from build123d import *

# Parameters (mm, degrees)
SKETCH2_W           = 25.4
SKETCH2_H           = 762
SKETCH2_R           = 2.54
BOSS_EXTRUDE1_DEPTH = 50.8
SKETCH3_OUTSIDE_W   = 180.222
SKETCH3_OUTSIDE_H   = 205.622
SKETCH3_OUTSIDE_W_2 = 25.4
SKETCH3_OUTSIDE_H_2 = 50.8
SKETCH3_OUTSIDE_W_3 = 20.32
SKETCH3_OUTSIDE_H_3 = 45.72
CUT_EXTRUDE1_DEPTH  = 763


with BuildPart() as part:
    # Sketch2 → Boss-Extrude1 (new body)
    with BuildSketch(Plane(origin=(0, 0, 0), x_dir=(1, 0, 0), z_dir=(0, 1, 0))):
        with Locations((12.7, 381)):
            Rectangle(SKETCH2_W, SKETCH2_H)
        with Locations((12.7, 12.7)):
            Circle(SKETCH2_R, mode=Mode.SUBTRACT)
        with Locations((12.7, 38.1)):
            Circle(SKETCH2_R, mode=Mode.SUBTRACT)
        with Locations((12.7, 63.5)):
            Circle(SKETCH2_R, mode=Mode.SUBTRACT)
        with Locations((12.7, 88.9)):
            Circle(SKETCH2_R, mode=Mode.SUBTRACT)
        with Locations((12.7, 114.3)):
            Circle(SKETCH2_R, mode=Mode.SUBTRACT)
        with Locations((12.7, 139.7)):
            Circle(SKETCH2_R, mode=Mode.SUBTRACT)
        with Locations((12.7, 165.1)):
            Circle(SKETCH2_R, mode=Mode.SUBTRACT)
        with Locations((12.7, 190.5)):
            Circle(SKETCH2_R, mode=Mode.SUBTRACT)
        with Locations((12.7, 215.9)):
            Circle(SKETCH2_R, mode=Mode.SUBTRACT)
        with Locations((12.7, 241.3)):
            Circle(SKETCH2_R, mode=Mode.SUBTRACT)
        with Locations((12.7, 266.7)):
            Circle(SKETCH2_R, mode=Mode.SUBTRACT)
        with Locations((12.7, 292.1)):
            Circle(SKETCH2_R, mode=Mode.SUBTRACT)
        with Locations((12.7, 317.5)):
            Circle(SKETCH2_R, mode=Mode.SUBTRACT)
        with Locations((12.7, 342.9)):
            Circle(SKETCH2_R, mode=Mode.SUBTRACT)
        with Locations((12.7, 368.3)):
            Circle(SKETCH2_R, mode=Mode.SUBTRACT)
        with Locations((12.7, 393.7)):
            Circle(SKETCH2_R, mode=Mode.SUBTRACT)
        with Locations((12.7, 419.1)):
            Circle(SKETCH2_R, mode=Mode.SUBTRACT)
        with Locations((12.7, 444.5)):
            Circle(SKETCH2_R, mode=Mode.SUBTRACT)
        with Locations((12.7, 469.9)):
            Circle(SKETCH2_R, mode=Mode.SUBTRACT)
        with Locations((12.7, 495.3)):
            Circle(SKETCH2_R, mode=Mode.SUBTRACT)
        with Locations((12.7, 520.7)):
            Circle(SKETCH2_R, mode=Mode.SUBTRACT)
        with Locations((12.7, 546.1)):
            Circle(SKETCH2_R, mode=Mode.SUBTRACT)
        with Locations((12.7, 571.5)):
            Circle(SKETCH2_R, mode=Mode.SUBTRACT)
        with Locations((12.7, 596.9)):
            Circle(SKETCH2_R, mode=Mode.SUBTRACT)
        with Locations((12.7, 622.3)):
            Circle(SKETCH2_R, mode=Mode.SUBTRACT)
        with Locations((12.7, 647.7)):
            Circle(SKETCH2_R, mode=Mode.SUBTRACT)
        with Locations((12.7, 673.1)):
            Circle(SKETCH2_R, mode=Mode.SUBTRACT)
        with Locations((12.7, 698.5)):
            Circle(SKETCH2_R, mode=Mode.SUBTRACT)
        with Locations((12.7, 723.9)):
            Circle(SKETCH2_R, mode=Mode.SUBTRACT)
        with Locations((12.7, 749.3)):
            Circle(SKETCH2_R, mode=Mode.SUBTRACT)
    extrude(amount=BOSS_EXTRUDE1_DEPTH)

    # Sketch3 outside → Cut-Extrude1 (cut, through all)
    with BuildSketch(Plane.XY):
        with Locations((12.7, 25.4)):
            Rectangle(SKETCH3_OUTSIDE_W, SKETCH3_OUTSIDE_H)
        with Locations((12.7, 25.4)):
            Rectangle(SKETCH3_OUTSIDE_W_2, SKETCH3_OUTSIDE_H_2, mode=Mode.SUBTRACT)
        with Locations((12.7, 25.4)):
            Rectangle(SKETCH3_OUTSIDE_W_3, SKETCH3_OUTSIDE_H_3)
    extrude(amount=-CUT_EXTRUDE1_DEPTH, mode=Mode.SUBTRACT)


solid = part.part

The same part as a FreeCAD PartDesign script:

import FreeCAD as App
import Part
import Sketcher

V = App.Vector
Q = App.Units.Quantity

doc = App.newDocument("Part")
body = doc.addObject("PartDesign::Body", "Body")

# Sketch on XZ plane
sketch1 = body.newObject("Sketcher::SketchObject", "Sketch")
sketch1.AttachmentSupport = (doc.getObject("XZ_Plane"), [""])
sketch1.MapMode = "FlatFace"
sketch1.addGeometry([
    Part.LineSegment(V(0, -762, 0), V(0, 0, 0)),  # 0
    Part.LineSegment(V(0, 0, 0), V(25.4, 0, 0)),  # 1
    Part.LineSegment(V(25.4, 0, 0), V(25.4, -762, 0)),  # 2
    Part.LineSegment(V(25.4, -762, 0), V(0, -762, 0)),  # 3
    Part.Circle(V(12.7, -12.7, 0), V(0, 0, 1), 2.5),  # 4
    Part.Circle(V(12.7, -38.1, 0), V(0, 0, 1), 2.5),  # 5
    Part.Circle(V(12.7, -63.5, 0), V(0, 0, 1), 2.5),  # 6
    Part.Circle(V(12.7, -88.9, 0), V(0, 0, 1), 2.5),  # 7
    Part.Circle(V(12.7, -114.3, 0), V(0, 0, 1), 2.5),  # 8
    Part.Circle(V(12.7, -139.7, 0), V(0, 0, 1), 2.5),  # 9
    Part.Circle(V(12.7, -165.1, 0), V(0, 0, 1), 2.5),  # 10
    Part.Circle(V(12.7, -190.5, 0), V(0, 0, 1), 2.5),  # 11
    Part.Circle(V(12.7, -215.9, 0), V(0, 0, 1), 2.5),  # 12
    Part.Circle(V(12.7, -241.3, 0), V(0, 0, 1), 2.5),  # 13
    Part.Circle(V(12.7, -266.7, 0), V(0, 0, 1), 2.5),  # 14
    Part.Circle(V(12.7, -292.1, 0), V(0, 0, 1), 2.5),  # 15
    Part.Circle(V(12.7, -317.5, 0), V(0, 0, 1), 2.5),  # 16
    Part.Circle(V(12.7, -342.9, 0), V(0, 0, 1), 2.5),  # 17
    Part.Circle(V(12.7, -368.3, 0), V(0, 0, 1), 2.5),  # 18
    Part.Circle(V(12.7, -393.7, 0), V(0, 0, 1), 2.5),  # 19
    Part.Circle(V(12.7, -419.1, 0), V(0, 0, 1), 2.5),  # 20
    Part.Circle(V(12.7, -444.5, 0), V(0, 0, 1), 2.5),  # 21
    Part.Circle(V(12.7, -469.9, 0), V(0, 0, 1), 2.5),  # 22
    Part.Circle(V(12.7, -495.3, 0), V(0, 0, 1), 2.5),  # 23
    Part.Circle(V(12.7, -520.7, 0), V(0, 0, 1), 2.5),  # 24
    Part.Circle(V(12.7, -546.1, 0), V(0, 0, 1), 2.5),  # 25
    Part.Circle(V(12.7, -571.5, 0), V(0, 0, 1), 2.5),  # 26
    Part.Circle(V(12.7, -596.9, 0), V(0, 0, 1), 2.5),  # 27
    Part.Circle(V(12.7, -622.3, 0), V(0, 0, 1), 2.5),  # 28
    Part.Circle(V(12.7, -647.7, 0), V(0, 0, 1), 2.5),  # 29
    Part.Circle(V(12.7, -673.1, 0), V(0, 0, 1), 2.5),  # 30
    Part.Circle(V(12.7, -698.5, 0), V(0, 0, 1), 2.5),  # 31
    Part.Circle(V(12.7, -723.9, 0), V(0, 0, 1), 2.5),  # 32
    Part.Circle(V(12.7, -749.3, 0), V(0, 0, 1), 2.5),  # 33
], False)
sketch1.addConstraint([
    Sketcher.Constraint("Coincident", 0, 2, 1, 1),
    Sketcher.Constraint("Coincident", 1, 2, 2, 1),
    Sketcher.Constraint("Coincident", 2, 2, 3, 1),
    Sketcher.Constraint("Coincident", 3, 2, 0, 1),
    Sketcher.Constraint("Vertical", 0),
    Sketcher.Constraint("Horizontal", 1),
    Sketcher.Constraint("Vertical", 2),
    Sketcher.Constraint("Horizontal", 3),
    Sketcher.Constraint("Coincident", 0, 2, -1, 1),
    Sketcher.Constraint("Equal", 4, 5),
    Sketcher.Constraint("Equal", 5, 6),
    Sketcher.Constraint("Equal", 6, 7),
    Sketcher.Constraint("Equal", 7, 8),
    Sketcher.Constraint("Equal", 8, 9),
    Sketcher.Constraint("Equal", 9, 10),
    Sketcher.Constraint("Equal", 10, 11),
    Sketcher.Constraint("Equal", 11, 12),
    Sketcher.Constraint("Equal", 12, 13),
    Sketcher.Constraint("Equal", 13, 14),
    Sketcher.Constraint("Equal", 14, 15),
    Sketcher.Constraint("Equal", 15, 16),
    Sketcher.Constraint("Equal", 16, 17),
    Sketcher.Constraint("Equal", 17, 18),
    Sketcher.Constraint("Equal", 18, 19),
    Sketcher.Constraint("Equal", 19, 20),
    Sketcher.Constraint("Equal", 20, 21),
    Sketcher.Constraint("Equal", 21, 22),
    Sketcher.Constraint("Equal", 22, 23),
    Sketcher.Constraint("Equal", 23, 24),
    Sketcher.Constraint("Equal", 24, 25),
    Sketcher.Constraint("Equal", 25, 26),
    Sketcher.Constraint("Equal", 26, 27),
    Sketcher.Constraint("Equal", 27, 28),
    Sketcher.Constraint("Equal", 28, 29),
    Sketcher.Constraint("Equal", 29, 30),
    Sketcher.Constraint("Equal", 30, 31),
    Sketcher.Constraint("Equal", 31, 32),
    Sketcher.Constraint("Equal", 32, 33),
    Sketcher.Constraint("Vertical", 4, 3, 5, 3),
    Sketcher.Constraint("Vertical", 5, 3, 6, 3),
    Sketcher.Constraint("Vertical", 6, 3, 7, 3),
    Sketcher.Constraint("Vertical", 7, 3, 8, 3),
    Sketcher.Constraint("Vertical", 8, 3, 9, 3),
    Sketcher.Constraint("Vertical", 9, 3, 10, 3),
    Sketcher.Constraint("Vertical", 10, 3, 11, 3),
    Sketcher.Constraint("Vertical", 11, 3, 12, 3),
    Sketcher.Constraint("Vertical", 12, 3, 13, 3),
    Sketcher.Constraint("Vertical", 13, 3, 14, 3),
    Sketcher.Constraint("Vertical", 14, 3, 15, 3),
    Sketcher.Constraint("Vertical", 15, 3, 16, 3),
    Sketcher.Constraint("Vertical", 16, 3, 17, 3),
    Sketcher.Constraint("Vertical", 17, 3, 18, 3),
    Sketcher.Constraint("Vertical", 18, 3, 19, 3),
    Sketcher.Constraint("Vertical", 19, 3, 20, 3),
    Sketcher.Constraint("Vertical", 20, 3, 21, 3),
    Sketcher.Constraint("Vertical", 21, 3, 22, 3),
    Sketcher.Constraint("Vertical", 22, 3, 23, 3),
    Sketcher.Constraint("Vertical", 23, 3, 24, 3),
    Sketcher.Constraint("Vertical", 24, 3, 25, 3),
    Sketcher.Constraint("Vertical", 25, 3, 26, 3),
    Sketcher.Constraint("Vertical", 26, 3, 27, 3),
    Sketcher.Constraint("Vertical", 27, 3, 28, 3),
    Sketcher.Constraint("Vertical", 28, 3, 29, 3),
    Sketcher.Constraint("Vertical", 29, 3, 30, 3),
    Sketcher.Constraint("Vertical", 30, 3, 31, 3),
    Sketcher.Constraint("Vertical", 31, 3, 32, 3),
    Sketcher.Constraint("Vertical", 32, 3, 33, 3),
    Sketcher.Constraint("Diameter", 4, Q("0.2 in")),
    Sketcher.Constraint("DistanceX", 1, 1, 1, 2, Q("1 in")),
    Sketcher.Constraint("DistanceY", 0, 1, 0, 2, Q("30 in")),
    Sketcher.Constraint("DistanceY", 5, 3, 4, 3, Q("1 in")),
    Sketcher.Constraint("DistanceY", 6, 3, 5, 3, Q("1 in")),
    Sketcher.Constraint("DistanceY", 7, 3, 6, 3, Q("1 in")),
    Sketcher.Constraint("DistanceY", 8, 3, 7, 3, Q("1 in")),
    Sketcher.Constraint("DistanceY", 9, 3, 8, 3, Q("1 in")),
    Sketcher.Constraint("DistanceY", 10, 3, 9, 3, Q("1 in")),
    Sketcher.Constraint("DistanceY", 11, 3, 10, 3, Q("1 in")),
    Sketcher.Constraint("DistanceY", 12, 3, 11, 3, Q("1 in")),
    Sketcher.Constraint("DistanceY", 13, 3, 12, 3, Q("1 in")),
    Sketcher.Constraint("DistanceY", 14, 3, 13, 3, Q("1 in")),
    Sketcher.Constraint("DistanceY", 15, 3, 14, 3, Q("1 in")),
    Sketcher.Constraint("DistanceY", 16, 3, 15, 3, Q("1 in")),
    Sketcher.Constraint("DistanceY", 17, 3, 16, 3, Q("1 in")),
    Sketcher.Constraint("DistanceY", 18, 3, 17, 3, Q("1 in")),
    Sketcher.Constraint("DistanceY", 19, 3, 18, 3, Q("1 in")),
    Sketcher.Constraint("DistanceY", 20, 3, 19, 3, Q("1 in")),
    Sketcher.Constraint("DistanceY", 21, 3, 20, 3, Q("1 in")),
    Sketcher.Constraint("DistanceY", 22, 3, 21, 3, Q("1 in")),
    Sketcher.Constraint("DistanceY", 23, 3, 22, 3, Q("1 in")),
    Sketcher.Constraint("DistanceY", 24, 3, 23, 3, Q("1 in")),
    Sketcher.Constraint("DistanceY", 25, 3, 24, 3, Q("1 in")),
    Sketcher.Constraint("DistanceY", 26, 3, 25, 3, Q("1 in")),
    Sketcher.Constraint("DistanceY", 27, 3, 26, 3, Q("1 in")),
    Sketcher.Constraint("DistanceY", 28, 3, 27, 3, Q("1 in")),
    Sketcher.Constraint("DistanceY", 29, 3, 28, 3, Q("1 in")),
    Sketcher.Constraint("DistanceY", 30, 3, 29, 3, Q("1 in")),
    Sketcher.Constraint("DistanceY", 31, 3, 30, 3, Q("1 in")),
    Sketcher.Constraint("DistanceY", 32, 3, 31, 3, Q("1 in")),
    Sketcher.Constraint("DistanceY", 33, 3, 32, 3, Q("1 in")),
    Sketcher.Constraint("DistanceX", -1, 1, 4, 3, Q("0.5 in")),
    Sketcher.Constraint("DistanceY", 4, 3, -1, 1, Q("0.5 in")),
])
pad1 = body.newObject("PartDesign::Pad", "Pad")
pad1.Profile = sketch1
pad1.Length = Q("2 in")
pad1.Reversed = True

# Sketch on XY plane
sketch2 = body.newObject("Sketcher::SketchObject", "Sketch001")
sketch2.AttachmentSupport = (doc.getObject("XY_Plane"), [""])
sketch2.MapMode = "FlatFace"
sketch2.addGeometry([
    Part.LineSegment(V(-77, 128, 0), V(-77, -77, 0)),  # 0
    Part.LineSegment(V(-77, -77, 0), V(103, -77, 0)),  # 1
    Part.LineSegment(V(103, -77, 0), V(103, 128, 0)),  # 2
    Part.LineSegment(V(103, 128, 0), V(-77, 128, 0)),  # 3
    Part.LineSegment(V(25, 0, 0), V(0, 0, 0)),  # 4
    Part.LineSegment(V(0, 0, 0), V(0, 51, 0)),  # 5
    Part.LineSegment(V(0, 51, 0), V(25, 51, 0)),  # 6
    Part.LineSegment(V(25, 51, 0), V(25, 0, 0)),  # 7
    Part.LineSegment(V(3, 48, 0), V(3, 3, 0)),  # 8
    Part.LineSegment(V(3, 3, 0), V(23, 3, 0)),  # 9
    Part.LineSegment(V(23, 3, 0), V(23, 48, 0)),  # 10
    Part.LineSegment(V(23, 48, 0), V(3, 48, 0)),  # 11
], False)
sketch2.addConstraint([
    Sketcher.Constraint("Coincident", 0, 2, 1, 1),
    Sketcher.Constraint("Coincident", 1, 2, 2, 1),
    Sketcher.Constraint("Coincident", 2, 2, 3, 1),
    Sketcher.Constraint("Coincident", 3, 2, 0, 1),
    Sketcher.Constraint("Coincident", 4, 2, 5, 1),
    Sketcher.Constraint("Coincident", 5, 2, 6, 1),
    Sketcher.Constraint("Coincident", 6, 2, 7, 1),
    Sketcher.Constraint("Coincident", 7, 2, 4, 1),
    Sketcher.Constraint("Coincident", 8, 2, 9, 1),
    Sketcher.Constraint("Coincident", 9, 2, 10, 1),
    Sketcher.Constraint("Coincident", 10, 2, 11, 1),
    Sketcher.Constraint("Coincident", 11, 2, 8, 1),
    Sketcher.Constraint("Vertical", 0),
    Sketcher.Constraint("Horizontal", 1),
    Sketcher.Constraint("Vertical", 2),
    Sketcher.Constraint("Horizontal", 3),
    Sketcher.Constraint("Horizontal", 4),
    Sketcher.Constraint("Vertical", 5),
    Sketcher.Constraint("Horizontal", 6),
    Sketcher.Constraint("Vertical", 7),
    Sketcher.Constraint("Vertical", 8),
    Sketcher.Constraint("Horizontal", 9),
    Sketcher.Constraint("Vertical", 10),
    Sketcher.Constraint("Horizontal", 11),
    Sketcher.Constraint("Coincident", 4, 2, -1, 1),
    Sketcher.Constraint("DistanceX", 4, 2, 4, 1, Q("1 in")),
    Sketcher.Constraint("DistanceY", 5, 1, 5, 2, Q("2 in")),
    Sketcher.Constraint("DistanceX", 9, 1, 9, 2, Q("0.8 in")),
    Sketcher.Constraint("DistanceY", 8, 2, 8, 1, Q("1.8 in")),
    Sketcher.Constraint("DistanceX", -1, 1, 8, 2, Q("0.1 in")),
    Sketcher.Constraint("DistanceY", -1, 1, 8, 2, Q("0.1 in")),
    Sketcher.Constraint("DistanceX", 1, 1, 1, 2, 180.222),
    Sketcher.Constraint("DistanceY", 0, 2, 0, 1, 205.622),
    Sketcher.Constraint("DistanceX", 0, 2, -1, 1, 77.411),
    Sketcher.Constraint("DistanceY", 0, 2, -1, 1, 77.411),
])
pocket1 = body.newObject("PartDesign::Pocket", "Pocket")
pocket1.Profile = sketch2
pocket1.Type = "ThroughAll"

doc.recompute()
